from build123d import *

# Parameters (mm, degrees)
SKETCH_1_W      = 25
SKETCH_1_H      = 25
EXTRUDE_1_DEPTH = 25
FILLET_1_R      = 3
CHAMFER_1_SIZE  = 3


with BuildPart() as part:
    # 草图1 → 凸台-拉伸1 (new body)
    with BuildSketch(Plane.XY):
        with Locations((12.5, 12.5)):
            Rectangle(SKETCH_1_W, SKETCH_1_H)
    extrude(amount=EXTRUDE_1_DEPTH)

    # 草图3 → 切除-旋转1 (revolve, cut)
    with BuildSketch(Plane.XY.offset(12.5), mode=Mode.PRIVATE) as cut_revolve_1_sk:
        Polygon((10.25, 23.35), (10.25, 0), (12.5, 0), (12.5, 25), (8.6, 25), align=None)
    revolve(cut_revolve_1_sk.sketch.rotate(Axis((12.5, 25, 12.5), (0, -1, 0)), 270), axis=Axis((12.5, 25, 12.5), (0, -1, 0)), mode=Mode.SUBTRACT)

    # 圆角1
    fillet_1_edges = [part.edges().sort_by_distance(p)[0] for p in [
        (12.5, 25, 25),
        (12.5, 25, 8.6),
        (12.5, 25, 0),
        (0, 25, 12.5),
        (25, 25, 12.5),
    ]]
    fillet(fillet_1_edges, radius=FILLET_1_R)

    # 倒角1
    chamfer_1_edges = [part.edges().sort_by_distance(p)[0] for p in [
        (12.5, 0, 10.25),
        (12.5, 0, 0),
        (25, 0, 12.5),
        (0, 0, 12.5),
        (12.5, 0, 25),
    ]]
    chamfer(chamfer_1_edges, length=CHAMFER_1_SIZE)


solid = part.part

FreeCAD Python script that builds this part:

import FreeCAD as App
import Part
import Sketcher

V = App.Vector
Q = App.Units.Quantity


def edges_at(feature, points):
    """Names of the edges that pass closest to the given points."""
    edges = feature.Shape.Edges
    near = lambda p: min(range(len(edges)), key=lambda i: edges[i].distToShape(Part.Vertex(*p))[0])
    return sorted({f"Edge{near(p) + 1}" for p in points})

doc = App.newDocument("Part")
body = doc.addObject("PartDesign::Body", "Body")

# Sketch on XY plane
sketch1 = body.newObject("Sketcher::SketchObject", "Sketch")
sketch1.AttachmentSupport = (doc.getObject("XY_Plane"), [""])
sketch1.MapMode = "FlatFace"
sketch1.addGeometry([
    Part.LineSegment(V(0, 25, 0), V(0, 0, 0)),
    Part.LineSegment(V(0, 0, 0), V(25, 0, 0)),
    Part.LineSegment(V(25, 0, 0), V(25, 25, 0)),
    Part.LineSegment(V(25, 25, 0), V(0, 25, 0)),
], False)
sketch1.addConstraint([
    Sketcher.Constraint("Coincident", 0, 2, 1, 1),
    Sketcher.Constraint("Coincident", 1, 2, 2, 1),
    Sketcher.Constraint("Coincident", 2, 2, 3, 1),
    Sketcher.Constraint("Coincident", 3, 2, 0, 1),
    Sketcher.Constraint("Vertical", 0),
    Sketcher.Constraint("Horizontal", 1),
    Sketcher.Constraint("Vertical", 2),
    Sketcher.Constraint("Horizontal", 3),
    Sketcher.Constraint("Coincident", 0, 2, -1, 1),
    Sketcher.Constraint("Equal", 3, 0),
    Sketcher.Constraint("DistanceX", 1, 1, 1, 2, Q("25 mm")),
])
pad1 = body.newObject("PartDesign::Pad", "Pad")
pad1.Profile = sketch1
pad1.Length = 25

# Sketch on XY plane
sketch2 = body.newObject("Sketcher::SketchObject", "Sketch001")
sketch2.AttachmentSupport = (doc.getObject("XY_Plane"), [""])
sketch2.MapMode = "FlatFace"
sketch2.AttachmentOffset = App.Placement(V(0, 0, 12.5), App.Rotation())
sketch2.addGeometry([
    Part.LineSegment(V(10.25, 23.35, 0), V(10.25, 0, 0)),  # 0
    Part.LineSegment(V(10.25, 0, 0), V(12.5, 0, 0)),  # 1
    Part.LineSegment(V(12.5, 0, 0), V(12.5, 25, 0)),  # 2
    Part.LineSegment(V(12.5, 25, 0), V(8.6, 25, 0)),  # 3
    Part.LineSegment(V(8.6, 25, 0), V(10.25, 23.35, 0)),  # 4
], False)
sketch2.addGeometry(Part.LineSegment(V(12.5, 25, 0), V(12.5, 0, 0)), True)  # axis
sketch2.addConstraint([
    Sketcher.Constraint("Coincident", 0, 2, 1, 1),
    Sketcher.Constraint("Coincident", 1, 2, 2, 1),
    Sketcher.Constraint("Coincident", 2, 2, 3, 1),
    Sketcher.Constraint("Coincident", 3, 2, 4, 1),
    Sketcher.Constraint("Coincident", 4, 2, 0, 1),
    Sketcher.Constraint("Vertical", 0),
    Sketcher.Constraint("Horizontal", 1),
    Sketcher.Constraint("Vertical", 2),
    Sketcher.Constraint("Horizontal", 3),
    Sketcher.Constraint("Vertical", 5),
    Sketcher.Constraint("Coincident", 5, 1, 2, 2),
    Sketcher.Constraint("PointOnObject", 0, 2, -1),
    Sketcher.Constraint("PointOnObject", 5, 2, -1),
    Sketcher.Constraint("DistanceY", 2, 1, 2, 2, Q("25 mm")),
    Sketcher.Constraint("Angle", 4, Q("-45 deg")),
    Sketcher.Constraint("DistanceX", 3, 2, 3, 1, Q("3.9 mm")),
    Sketcher.Constraint("DistanceX", 1, 1, 1, 2, Q("2.25 mm")),
    Sketcher.Constraint("DistanceX", -1, 1, 1, 2, Q("12.5 mm")),
])
groove = body.newObject("PartDesign::Groove", "Groove")
groove.Profile = sketch2
groove.ReferenceAxis = (sketch2, ["Axis0"])
groove.Angle = 360
doc.recompute()

fillet = body.newObject("PartDesign::Fillet", "Fillet")
fillet.Base = (groove, edges_at(groove, [
    (12.5, 25, 25),
    (12.5, 25, 8.6),
    (12.5, 25, 0),
    (0, 25, 12.5),
    (25, 25, 12.5),
]))
fillet.Radius = 3
doc.recompute()

chamfer = body.newObject("PartDesign::Chamfer", "Chamfer")
chamfer.Base = (fillet, edges_at(fillet, [
    (12.5, 0, 10.25),
    (12.5, 0, 0),
    (25, 0, 12.5),
    (0, 0, 12.5),
    (12.5, 0, 25),
]))
chamfer.Size = 3

doc.recompute()
